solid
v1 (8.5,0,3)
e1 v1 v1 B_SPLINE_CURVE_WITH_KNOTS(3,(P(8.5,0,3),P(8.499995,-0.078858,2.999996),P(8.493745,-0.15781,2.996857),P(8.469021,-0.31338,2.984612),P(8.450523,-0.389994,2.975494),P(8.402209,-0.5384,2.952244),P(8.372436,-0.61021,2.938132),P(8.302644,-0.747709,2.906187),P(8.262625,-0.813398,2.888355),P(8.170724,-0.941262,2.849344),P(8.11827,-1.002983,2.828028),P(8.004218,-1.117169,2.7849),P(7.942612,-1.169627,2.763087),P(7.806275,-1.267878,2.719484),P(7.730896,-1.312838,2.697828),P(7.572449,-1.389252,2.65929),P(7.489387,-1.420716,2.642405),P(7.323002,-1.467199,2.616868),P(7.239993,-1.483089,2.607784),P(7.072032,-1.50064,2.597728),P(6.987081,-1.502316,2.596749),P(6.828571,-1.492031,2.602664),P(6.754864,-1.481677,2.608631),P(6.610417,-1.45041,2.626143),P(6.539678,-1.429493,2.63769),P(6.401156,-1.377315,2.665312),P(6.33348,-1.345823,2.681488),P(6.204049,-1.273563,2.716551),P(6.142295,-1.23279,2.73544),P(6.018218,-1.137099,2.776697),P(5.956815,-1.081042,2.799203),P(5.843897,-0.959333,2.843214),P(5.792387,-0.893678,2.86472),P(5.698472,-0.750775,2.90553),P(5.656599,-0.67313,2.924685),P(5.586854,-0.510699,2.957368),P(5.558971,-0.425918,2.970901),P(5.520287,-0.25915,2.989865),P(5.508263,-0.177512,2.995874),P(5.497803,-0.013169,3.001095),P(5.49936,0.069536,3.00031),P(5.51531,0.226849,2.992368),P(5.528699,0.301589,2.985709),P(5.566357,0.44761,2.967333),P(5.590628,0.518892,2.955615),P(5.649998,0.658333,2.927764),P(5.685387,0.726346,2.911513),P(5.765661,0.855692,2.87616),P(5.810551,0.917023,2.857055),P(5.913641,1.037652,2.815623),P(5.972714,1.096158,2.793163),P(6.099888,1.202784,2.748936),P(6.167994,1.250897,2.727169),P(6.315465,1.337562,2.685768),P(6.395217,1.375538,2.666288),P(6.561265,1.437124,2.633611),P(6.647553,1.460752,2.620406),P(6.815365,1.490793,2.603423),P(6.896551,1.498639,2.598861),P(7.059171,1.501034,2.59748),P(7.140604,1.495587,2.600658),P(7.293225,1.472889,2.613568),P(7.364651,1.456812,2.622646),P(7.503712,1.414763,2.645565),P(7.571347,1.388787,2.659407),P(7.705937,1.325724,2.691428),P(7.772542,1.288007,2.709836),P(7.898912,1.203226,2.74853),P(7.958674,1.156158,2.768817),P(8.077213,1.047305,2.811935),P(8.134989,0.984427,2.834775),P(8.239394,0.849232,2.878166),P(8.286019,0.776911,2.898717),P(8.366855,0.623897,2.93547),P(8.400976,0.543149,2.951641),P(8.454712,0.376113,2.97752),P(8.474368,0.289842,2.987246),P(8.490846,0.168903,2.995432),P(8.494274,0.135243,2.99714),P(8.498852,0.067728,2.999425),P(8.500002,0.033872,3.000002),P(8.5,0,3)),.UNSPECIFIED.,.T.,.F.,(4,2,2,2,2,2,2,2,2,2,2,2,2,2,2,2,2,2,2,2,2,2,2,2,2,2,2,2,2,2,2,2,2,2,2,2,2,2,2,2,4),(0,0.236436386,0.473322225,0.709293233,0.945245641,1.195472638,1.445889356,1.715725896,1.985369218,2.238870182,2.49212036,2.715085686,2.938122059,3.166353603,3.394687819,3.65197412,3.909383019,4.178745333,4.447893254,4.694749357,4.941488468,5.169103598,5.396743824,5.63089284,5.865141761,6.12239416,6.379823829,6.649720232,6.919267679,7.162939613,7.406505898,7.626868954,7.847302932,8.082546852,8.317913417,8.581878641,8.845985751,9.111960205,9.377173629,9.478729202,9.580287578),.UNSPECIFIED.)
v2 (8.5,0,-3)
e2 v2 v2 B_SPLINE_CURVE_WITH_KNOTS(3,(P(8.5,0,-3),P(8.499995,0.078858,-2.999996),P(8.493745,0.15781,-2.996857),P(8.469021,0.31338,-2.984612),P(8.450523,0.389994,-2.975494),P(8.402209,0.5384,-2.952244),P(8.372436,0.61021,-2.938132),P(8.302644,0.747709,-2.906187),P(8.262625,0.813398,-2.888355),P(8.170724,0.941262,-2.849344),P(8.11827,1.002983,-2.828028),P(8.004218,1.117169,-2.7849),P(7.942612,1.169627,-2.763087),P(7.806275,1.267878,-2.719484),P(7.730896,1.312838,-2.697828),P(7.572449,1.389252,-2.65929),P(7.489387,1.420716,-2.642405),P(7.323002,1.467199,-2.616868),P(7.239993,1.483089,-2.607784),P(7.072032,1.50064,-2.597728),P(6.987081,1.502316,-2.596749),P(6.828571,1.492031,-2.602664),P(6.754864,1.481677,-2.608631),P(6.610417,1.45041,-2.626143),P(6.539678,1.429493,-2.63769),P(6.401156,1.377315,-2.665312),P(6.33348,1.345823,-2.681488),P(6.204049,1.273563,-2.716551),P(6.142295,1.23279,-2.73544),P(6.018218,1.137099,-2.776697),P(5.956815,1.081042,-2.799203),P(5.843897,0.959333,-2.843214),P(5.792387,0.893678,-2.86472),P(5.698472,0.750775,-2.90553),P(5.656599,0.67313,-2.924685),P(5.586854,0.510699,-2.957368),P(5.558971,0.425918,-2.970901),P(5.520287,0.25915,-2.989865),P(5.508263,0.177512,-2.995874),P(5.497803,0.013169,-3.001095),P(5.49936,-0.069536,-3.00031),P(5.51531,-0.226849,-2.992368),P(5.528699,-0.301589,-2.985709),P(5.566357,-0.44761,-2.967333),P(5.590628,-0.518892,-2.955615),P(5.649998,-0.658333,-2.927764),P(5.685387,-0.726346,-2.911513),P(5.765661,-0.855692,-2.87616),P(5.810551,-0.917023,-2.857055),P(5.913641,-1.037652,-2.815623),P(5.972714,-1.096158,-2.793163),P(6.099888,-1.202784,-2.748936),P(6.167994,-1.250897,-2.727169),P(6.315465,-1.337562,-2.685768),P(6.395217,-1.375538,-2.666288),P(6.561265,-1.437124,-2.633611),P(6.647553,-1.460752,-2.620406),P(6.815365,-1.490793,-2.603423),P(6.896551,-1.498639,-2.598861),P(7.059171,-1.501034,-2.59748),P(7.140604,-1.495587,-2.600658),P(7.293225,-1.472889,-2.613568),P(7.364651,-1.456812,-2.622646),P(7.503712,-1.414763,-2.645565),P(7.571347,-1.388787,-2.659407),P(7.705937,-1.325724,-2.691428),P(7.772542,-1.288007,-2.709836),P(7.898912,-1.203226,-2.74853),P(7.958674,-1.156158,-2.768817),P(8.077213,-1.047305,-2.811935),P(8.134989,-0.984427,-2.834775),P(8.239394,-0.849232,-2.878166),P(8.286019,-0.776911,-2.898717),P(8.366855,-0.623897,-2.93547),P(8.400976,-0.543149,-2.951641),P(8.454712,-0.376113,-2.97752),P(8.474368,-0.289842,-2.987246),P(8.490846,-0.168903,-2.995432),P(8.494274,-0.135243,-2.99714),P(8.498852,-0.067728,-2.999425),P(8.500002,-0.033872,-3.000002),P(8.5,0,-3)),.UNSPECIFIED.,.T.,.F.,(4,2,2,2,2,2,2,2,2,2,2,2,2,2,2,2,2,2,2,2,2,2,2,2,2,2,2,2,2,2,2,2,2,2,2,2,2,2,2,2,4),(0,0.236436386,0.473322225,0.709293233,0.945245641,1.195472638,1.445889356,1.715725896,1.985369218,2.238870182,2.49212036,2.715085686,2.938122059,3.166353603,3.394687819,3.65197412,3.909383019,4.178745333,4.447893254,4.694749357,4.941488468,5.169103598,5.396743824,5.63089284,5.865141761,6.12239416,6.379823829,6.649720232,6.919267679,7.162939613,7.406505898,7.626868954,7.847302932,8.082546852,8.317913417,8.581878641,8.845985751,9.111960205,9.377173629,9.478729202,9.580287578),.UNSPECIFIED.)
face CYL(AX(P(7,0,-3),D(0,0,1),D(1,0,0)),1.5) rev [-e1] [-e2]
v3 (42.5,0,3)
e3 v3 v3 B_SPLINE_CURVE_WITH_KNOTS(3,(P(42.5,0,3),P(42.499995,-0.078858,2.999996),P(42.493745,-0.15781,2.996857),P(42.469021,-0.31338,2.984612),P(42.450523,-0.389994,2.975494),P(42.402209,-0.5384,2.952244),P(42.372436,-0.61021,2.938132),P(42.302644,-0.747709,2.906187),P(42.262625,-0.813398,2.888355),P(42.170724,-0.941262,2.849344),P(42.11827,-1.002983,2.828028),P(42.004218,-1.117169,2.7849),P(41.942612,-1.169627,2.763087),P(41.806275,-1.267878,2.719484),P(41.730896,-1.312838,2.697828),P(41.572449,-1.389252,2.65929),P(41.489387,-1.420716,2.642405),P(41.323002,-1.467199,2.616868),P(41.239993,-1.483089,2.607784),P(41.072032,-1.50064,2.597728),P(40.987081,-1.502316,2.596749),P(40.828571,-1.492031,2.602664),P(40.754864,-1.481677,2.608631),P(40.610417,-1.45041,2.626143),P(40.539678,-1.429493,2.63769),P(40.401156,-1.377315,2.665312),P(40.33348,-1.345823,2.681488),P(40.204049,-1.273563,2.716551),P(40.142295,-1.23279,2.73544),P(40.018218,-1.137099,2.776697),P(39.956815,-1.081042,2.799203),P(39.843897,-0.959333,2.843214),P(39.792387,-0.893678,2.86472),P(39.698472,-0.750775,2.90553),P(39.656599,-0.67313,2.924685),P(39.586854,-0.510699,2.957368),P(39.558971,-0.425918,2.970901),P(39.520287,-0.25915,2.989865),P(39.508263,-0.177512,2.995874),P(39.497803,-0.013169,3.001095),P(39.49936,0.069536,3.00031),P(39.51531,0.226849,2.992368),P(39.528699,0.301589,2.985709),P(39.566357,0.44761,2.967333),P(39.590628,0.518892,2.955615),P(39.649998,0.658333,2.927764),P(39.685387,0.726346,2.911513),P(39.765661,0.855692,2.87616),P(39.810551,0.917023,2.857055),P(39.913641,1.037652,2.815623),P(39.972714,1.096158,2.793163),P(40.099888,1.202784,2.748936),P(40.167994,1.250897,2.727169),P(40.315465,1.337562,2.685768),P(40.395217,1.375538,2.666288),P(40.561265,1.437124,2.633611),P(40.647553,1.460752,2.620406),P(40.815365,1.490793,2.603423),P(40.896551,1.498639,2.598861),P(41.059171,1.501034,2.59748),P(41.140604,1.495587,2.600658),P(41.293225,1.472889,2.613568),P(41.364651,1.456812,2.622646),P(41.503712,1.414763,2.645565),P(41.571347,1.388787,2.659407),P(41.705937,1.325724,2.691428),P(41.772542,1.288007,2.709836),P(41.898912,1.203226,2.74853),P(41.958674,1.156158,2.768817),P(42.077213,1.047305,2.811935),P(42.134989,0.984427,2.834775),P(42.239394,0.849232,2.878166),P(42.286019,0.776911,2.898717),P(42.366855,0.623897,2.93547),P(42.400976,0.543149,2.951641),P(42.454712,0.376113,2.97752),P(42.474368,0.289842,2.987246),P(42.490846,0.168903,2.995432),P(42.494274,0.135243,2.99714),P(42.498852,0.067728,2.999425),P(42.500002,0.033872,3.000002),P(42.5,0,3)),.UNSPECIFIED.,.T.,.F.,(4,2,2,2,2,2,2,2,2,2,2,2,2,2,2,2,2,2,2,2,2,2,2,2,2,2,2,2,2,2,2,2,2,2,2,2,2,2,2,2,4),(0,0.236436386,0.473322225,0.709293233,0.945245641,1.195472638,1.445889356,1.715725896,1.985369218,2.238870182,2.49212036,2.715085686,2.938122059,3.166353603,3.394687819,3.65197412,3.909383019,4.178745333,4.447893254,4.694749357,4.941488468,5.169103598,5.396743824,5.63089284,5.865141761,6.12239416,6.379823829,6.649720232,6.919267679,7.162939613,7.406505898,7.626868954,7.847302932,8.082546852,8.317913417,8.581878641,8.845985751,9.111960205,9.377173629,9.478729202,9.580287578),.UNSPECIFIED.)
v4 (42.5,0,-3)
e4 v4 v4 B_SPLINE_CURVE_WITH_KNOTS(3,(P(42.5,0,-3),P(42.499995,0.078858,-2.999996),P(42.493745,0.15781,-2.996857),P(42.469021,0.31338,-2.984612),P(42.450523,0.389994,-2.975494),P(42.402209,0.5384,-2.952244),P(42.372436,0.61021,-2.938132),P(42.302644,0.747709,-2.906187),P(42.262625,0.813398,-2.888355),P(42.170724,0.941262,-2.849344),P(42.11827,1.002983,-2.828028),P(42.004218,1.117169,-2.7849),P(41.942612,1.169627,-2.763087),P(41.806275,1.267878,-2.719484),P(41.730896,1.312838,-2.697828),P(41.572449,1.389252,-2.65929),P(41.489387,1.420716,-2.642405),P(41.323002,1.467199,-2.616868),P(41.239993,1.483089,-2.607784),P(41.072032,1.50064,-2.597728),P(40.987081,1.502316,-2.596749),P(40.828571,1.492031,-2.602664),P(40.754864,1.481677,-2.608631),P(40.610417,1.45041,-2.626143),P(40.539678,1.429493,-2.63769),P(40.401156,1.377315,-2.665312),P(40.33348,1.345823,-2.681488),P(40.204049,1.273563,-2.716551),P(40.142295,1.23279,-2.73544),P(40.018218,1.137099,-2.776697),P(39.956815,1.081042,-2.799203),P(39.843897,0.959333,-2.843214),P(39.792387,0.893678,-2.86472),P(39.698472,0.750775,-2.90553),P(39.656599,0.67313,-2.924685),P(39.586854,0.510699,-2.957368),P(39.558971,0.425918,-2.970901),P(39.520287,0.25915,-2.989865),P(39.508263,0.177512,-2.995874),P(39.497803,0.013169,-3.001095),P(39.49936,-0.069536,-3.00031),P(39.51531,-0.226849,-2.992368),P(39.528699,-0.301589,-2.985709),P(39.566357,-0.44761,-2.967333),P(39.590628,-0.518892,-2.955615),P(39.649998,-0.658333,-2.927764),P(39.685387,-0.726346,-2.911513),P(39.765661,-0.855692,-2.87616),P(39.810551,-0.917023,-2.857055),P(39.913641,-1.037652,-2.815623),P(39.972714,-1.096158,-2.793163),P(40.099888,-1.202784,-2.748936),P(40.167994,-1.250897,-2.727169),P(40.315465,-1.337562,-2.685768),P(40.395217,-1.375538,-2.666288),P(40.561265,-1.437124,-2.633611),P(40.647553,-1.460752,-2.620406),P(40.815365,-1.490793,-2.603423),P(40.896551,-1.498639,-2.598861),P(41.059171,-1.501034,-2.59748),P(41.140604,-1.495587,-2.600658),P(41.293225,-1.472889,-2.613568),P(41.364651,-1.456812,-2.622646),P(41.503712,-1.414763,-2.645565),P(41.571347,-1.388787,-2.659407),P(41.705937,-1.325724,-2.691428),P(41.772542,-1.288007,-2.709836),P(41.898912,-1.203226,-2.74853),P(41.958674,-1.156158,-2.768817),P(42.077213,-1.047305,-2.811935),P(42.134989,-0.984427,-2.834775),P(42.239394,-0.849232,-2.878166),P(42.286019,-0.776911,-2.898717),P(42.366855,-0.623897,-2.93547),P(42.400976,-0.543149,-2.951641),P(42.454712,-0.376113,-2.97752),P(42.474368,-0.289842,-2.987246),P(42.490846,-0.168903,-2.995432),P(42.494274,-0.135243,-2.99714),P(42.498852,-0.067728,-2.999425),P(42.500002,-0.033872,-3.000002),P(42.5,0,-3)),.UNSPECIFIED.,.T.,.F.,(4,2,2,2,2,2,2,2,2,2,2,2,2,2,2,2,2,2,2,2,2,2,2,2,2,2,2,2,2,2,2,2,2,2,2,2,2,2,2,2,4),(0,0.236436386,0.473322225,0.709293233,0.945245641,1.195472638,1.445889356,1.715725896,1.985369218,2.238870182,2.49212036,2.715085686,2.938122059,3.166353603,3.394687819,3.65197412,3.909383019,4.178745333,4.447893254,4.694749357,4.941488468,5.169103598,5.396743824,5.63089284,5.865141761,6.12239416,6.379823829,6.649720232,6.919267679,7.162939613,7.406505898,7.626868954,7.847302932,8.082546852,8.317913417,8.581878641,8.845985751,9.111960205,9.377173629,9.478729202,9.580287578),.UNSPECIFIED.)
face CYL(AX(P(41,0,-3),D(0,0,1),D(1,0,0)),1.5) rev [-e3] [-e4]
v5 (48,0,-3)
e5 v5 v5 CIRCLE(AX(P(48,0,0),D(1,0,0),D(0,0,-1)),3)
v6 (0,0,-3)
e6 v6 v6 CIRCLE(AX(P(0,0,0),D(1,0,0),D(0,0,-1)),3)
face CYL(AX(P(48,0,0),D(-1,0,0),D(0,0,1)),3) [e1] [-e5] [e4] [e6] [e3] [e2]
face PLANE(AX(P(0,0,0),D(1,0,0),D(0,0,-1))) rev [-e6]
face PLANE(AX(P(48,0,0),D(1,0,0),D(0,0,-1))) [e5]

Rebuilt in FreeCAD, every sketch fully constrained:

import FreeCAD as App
import Part
import Sketcher

V = App.Vector

doc = App.newDocument("Part")
params = doc.addObject("Spreadsheet::Sheet", "Params")
for row, (alias, value) in enumerate([
    ("sketch1_diameter", "6 mm"),
    ("pad1_length", "48 mm"),
    ("sketch2_diameter", "3 mm"),
], start=1):
    params.set(f"A{row}", alias)
    params.set(f"B{row}", "=" + value)
    params.setAlias(f"B{row}", alias)

body = doc.addObject("PartDesign::Body", "Body")

# Sketch on YZ plane
sketch1 = body.newObject("Sketcher::SketchObject", "Sketch")
sketch1.AttachmentSupport = (doc.getObject("YZ_Plane"), [""])
sketch1.MapMode = "FlatFace"
sketch1.addGeometry(Part.Circle(V(0, 0, 0), V(0, 0, 1), 3), False)
sketch1.addConstraint([
    Sketcher.Constraint("Coincident", 0, 3, -1, 1),
    Sketcher.Constraint("Diameter", 0, 6.0),
])
sketch1.setExpression("Constraints[1]", "Params.sketch1_diameter")
pad1 = body.newObject("PartDesign::Pad", "Pad")
pad1.Profile = sketch1
pad1.setExpression("Length", "Params.pad1_length")

# Sketch on XY plane
sketch2 = body.newObject("Sketcher::SketchObject", "Sketch001")
sketch2.AttachmentSupport = (doc.getObject("XY_Plane"), [""])
sketch2.MapMode = "FlatFace"
sketch2.addGeometry([
    Part.Circle(V(41, 0, 0), V(0, 0, 1), 1.5),
    Part.Circle(V(7, 0, 0), V(0, 0, 1), 1.5),
], False)
sketch2.addConstraint([
    Sketcher.Constraint("Equal", 0, 1),
    Sketcher.Constraint("PointOnObject", 0, 3, -1),
    Sketcher.Constraint("PointOnObject", 1, 3, -1),
    Sketcher.Constraint("Diameter", 0, 3.0),
    Sketcher.Constraint("DistanceX", -1, 1, 0, 3, 41.0),
    Sketcher.Constraint("DistanceX", -1, 1, 1, 3, 7.0),
])
sketch2.setExpression("Constraints[3]", "Params.sketch2_diameter")
pocket1 = body.newObject("PartDesign::Pocket", "Pocket")
pocket1.Profile = sketch2
pocket1.Type = "ThroughAll"
pocket1.Midplane = True

doc.recompute()
